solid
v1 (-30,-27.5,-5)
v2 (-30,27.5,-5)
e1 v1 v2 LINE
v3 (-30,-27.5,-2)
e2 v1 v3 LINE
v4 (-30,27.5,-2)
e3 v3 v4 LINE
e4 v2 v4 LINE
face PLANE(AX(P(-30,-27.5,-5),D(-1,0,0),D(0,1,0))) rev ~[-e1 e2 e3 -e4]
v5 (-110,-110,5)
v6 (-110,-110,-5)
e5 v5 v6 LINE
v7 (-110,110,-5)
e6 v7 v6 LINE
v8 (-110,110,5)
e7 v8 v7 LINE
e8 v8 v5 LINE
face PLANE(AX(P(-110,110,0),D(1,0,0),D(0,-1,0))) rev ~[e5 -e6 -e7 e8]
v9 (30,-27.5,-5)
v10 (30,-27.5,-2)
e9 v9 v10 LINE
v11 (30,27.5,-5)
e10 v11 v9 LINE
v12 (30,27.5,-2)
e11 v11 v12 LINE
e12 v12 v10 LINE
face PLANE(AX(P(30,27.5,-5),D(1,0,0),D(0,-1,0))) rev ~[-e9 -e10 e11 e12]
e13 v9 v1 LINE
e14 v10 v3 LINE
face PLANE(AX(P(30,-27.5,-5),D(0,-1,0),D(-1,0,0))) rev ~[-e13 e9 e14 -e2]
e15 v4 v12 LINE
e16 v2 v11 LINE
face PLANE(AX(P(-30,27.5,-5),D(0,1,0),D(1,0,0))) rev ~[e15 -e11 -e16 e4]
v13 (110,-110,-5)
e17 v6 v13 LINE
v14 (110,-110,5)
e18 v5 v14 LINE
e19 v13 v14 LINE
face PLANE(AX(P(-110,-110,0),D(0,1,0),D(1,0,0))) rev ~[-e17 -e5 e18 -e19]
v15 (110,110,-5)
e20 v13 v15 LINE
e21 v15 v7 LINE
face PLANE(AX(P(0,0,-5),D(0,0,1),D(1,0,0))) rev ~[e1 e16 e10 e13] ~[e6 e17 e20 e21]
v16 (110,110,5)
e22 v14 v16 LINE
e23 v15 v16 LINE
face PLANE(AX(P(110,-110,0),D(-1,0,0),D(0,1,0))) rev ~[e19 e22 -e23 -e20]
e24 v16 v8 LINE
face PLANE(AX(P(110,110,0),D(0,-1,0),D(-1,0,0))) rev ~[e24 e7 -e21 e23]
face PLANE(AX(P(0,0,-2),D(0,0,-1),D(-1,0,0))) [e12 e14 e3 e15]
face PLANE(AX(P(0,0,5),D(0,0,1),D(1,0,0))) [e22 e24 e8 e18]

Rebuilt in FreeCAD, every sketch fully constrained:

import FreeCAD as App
import Part
import Sketcher

doc = App.newDocument("Part")
body = doc.addObject("PartDesign::Body", "Body")

sketch1 = body.newObject("Sketcher::SketchObject", "Sketch")
sketch1.AttachmentSupport = (doc.getObject("XY_Plane"), [""])
sketch1.MapMode = "FlatFace"
sketch1.addGeometry([
    Part.LineSegment(App.Vector(-110, 110, 0), App.Vector(-110, -110, 0)),
    Part.LineSegment(App.Vector(-110, -110, 0), App.Vector(110, -110, 0)),
    Part.LineSegment(App.Vector(110, -110, 0), App.Vector(110, 110, 0)),
    Part.LineSegment(App.Vector(110, 110, 0), App.Vector(-110, 110, 0)),
], False)
sketch1.addConstraint([
    Sketcher.Constraint("Coincident", 0, 2, 1, 1),
    Sketcher.Constraint("Coincident", 1, 2, 2, 1),
    Sketcher.Constraint("Coincident", 2, 2, 3, 1),
    Sketcher.Constraint("Coincident", 3, 2, 0, 1),
    Sketcher.Constraint("Vertical", 0),
    Sketcher.Constraint("Horizontal", 1),
    Sketcher.Constraint("Vertical", 2),
    Sketcher.Constraint("Horizontal", 3),
    Sketcher.Constraint("Symmetric", 0, 2, 2, 2, -1, 1),
    Sketcher.Constraint("Equal", 3, 0),
    Sketcher.Constraint("DistanceX", 1, 1, 1, 2, 220.0),
])
pad1 = body.newObject("PartDesign::Pad", "Pad")
pad1.Profile = sketch1
pad1.Length = 10
pad1.Midplane = True

sketch2 = body.newObject("Sketcher::SketchObject", "Sketch001")
sketch2.AttachmentSupport = (doc.getObject("XY_Plane"), [""])
sketch2.MapMode = "FlatFace"
sketch2.AttachmentOffset = App.Placement(App.Vector(0, 0, -5), App.Rotation())
sketch2.addGeometry([
    Part.LineSegment(App.Vector(-30, -27.5, 0), App.Vector(-30, 27.5, 0)),
    Part.LineSegment(App.Vector(-30, 27.5, 0), App.Vector(30, 27.5, 0)),
    Part.LineSegment(App.Vector(30, 27.5, 0), App.Vector(30, -27.5, 0)),
    Part.LineSegment(App.Vector(30, -27.5, 0), App.Vector(-30, -27.5, 0)),
], False)
sketch2.addConstraint([
    Sketcher.Constraint("Coincident", 0, 2, 1, 1),
    Sketcher.Constraint("Coincident", 1, 2, 2, 1),
    Sketcher.Constraint("Coincident", 2, 2, 3, 1),
    Sketcher.Constraint("Coincident", 3, 2, 0, 1),
    Sketcher.Constraint("Vertical", 0),
    Sketcher.Constraint("Horizontal", 1),
    Sketcher.Constraint("Vertical", 2),
    Sketcher.Constraint("Horizontal", 3),
    Sketcher.Constraint("Symmetric", 0, 2, 2, 2, -1, 1),
    Sketcher.Constraint("DistanceX", 1, 1, 1, 2, 60.0),
    Sketcher.Constraint("DistanceY", 0, 1, 0, 2, 55.0),
])
pocket1 = body.newObject("PartDesign::Pocket", "Pocket")
pocket1.Profile = sketch2
pocket1.Length = 3
pocket1.Reversed = True

doc.recompute()
